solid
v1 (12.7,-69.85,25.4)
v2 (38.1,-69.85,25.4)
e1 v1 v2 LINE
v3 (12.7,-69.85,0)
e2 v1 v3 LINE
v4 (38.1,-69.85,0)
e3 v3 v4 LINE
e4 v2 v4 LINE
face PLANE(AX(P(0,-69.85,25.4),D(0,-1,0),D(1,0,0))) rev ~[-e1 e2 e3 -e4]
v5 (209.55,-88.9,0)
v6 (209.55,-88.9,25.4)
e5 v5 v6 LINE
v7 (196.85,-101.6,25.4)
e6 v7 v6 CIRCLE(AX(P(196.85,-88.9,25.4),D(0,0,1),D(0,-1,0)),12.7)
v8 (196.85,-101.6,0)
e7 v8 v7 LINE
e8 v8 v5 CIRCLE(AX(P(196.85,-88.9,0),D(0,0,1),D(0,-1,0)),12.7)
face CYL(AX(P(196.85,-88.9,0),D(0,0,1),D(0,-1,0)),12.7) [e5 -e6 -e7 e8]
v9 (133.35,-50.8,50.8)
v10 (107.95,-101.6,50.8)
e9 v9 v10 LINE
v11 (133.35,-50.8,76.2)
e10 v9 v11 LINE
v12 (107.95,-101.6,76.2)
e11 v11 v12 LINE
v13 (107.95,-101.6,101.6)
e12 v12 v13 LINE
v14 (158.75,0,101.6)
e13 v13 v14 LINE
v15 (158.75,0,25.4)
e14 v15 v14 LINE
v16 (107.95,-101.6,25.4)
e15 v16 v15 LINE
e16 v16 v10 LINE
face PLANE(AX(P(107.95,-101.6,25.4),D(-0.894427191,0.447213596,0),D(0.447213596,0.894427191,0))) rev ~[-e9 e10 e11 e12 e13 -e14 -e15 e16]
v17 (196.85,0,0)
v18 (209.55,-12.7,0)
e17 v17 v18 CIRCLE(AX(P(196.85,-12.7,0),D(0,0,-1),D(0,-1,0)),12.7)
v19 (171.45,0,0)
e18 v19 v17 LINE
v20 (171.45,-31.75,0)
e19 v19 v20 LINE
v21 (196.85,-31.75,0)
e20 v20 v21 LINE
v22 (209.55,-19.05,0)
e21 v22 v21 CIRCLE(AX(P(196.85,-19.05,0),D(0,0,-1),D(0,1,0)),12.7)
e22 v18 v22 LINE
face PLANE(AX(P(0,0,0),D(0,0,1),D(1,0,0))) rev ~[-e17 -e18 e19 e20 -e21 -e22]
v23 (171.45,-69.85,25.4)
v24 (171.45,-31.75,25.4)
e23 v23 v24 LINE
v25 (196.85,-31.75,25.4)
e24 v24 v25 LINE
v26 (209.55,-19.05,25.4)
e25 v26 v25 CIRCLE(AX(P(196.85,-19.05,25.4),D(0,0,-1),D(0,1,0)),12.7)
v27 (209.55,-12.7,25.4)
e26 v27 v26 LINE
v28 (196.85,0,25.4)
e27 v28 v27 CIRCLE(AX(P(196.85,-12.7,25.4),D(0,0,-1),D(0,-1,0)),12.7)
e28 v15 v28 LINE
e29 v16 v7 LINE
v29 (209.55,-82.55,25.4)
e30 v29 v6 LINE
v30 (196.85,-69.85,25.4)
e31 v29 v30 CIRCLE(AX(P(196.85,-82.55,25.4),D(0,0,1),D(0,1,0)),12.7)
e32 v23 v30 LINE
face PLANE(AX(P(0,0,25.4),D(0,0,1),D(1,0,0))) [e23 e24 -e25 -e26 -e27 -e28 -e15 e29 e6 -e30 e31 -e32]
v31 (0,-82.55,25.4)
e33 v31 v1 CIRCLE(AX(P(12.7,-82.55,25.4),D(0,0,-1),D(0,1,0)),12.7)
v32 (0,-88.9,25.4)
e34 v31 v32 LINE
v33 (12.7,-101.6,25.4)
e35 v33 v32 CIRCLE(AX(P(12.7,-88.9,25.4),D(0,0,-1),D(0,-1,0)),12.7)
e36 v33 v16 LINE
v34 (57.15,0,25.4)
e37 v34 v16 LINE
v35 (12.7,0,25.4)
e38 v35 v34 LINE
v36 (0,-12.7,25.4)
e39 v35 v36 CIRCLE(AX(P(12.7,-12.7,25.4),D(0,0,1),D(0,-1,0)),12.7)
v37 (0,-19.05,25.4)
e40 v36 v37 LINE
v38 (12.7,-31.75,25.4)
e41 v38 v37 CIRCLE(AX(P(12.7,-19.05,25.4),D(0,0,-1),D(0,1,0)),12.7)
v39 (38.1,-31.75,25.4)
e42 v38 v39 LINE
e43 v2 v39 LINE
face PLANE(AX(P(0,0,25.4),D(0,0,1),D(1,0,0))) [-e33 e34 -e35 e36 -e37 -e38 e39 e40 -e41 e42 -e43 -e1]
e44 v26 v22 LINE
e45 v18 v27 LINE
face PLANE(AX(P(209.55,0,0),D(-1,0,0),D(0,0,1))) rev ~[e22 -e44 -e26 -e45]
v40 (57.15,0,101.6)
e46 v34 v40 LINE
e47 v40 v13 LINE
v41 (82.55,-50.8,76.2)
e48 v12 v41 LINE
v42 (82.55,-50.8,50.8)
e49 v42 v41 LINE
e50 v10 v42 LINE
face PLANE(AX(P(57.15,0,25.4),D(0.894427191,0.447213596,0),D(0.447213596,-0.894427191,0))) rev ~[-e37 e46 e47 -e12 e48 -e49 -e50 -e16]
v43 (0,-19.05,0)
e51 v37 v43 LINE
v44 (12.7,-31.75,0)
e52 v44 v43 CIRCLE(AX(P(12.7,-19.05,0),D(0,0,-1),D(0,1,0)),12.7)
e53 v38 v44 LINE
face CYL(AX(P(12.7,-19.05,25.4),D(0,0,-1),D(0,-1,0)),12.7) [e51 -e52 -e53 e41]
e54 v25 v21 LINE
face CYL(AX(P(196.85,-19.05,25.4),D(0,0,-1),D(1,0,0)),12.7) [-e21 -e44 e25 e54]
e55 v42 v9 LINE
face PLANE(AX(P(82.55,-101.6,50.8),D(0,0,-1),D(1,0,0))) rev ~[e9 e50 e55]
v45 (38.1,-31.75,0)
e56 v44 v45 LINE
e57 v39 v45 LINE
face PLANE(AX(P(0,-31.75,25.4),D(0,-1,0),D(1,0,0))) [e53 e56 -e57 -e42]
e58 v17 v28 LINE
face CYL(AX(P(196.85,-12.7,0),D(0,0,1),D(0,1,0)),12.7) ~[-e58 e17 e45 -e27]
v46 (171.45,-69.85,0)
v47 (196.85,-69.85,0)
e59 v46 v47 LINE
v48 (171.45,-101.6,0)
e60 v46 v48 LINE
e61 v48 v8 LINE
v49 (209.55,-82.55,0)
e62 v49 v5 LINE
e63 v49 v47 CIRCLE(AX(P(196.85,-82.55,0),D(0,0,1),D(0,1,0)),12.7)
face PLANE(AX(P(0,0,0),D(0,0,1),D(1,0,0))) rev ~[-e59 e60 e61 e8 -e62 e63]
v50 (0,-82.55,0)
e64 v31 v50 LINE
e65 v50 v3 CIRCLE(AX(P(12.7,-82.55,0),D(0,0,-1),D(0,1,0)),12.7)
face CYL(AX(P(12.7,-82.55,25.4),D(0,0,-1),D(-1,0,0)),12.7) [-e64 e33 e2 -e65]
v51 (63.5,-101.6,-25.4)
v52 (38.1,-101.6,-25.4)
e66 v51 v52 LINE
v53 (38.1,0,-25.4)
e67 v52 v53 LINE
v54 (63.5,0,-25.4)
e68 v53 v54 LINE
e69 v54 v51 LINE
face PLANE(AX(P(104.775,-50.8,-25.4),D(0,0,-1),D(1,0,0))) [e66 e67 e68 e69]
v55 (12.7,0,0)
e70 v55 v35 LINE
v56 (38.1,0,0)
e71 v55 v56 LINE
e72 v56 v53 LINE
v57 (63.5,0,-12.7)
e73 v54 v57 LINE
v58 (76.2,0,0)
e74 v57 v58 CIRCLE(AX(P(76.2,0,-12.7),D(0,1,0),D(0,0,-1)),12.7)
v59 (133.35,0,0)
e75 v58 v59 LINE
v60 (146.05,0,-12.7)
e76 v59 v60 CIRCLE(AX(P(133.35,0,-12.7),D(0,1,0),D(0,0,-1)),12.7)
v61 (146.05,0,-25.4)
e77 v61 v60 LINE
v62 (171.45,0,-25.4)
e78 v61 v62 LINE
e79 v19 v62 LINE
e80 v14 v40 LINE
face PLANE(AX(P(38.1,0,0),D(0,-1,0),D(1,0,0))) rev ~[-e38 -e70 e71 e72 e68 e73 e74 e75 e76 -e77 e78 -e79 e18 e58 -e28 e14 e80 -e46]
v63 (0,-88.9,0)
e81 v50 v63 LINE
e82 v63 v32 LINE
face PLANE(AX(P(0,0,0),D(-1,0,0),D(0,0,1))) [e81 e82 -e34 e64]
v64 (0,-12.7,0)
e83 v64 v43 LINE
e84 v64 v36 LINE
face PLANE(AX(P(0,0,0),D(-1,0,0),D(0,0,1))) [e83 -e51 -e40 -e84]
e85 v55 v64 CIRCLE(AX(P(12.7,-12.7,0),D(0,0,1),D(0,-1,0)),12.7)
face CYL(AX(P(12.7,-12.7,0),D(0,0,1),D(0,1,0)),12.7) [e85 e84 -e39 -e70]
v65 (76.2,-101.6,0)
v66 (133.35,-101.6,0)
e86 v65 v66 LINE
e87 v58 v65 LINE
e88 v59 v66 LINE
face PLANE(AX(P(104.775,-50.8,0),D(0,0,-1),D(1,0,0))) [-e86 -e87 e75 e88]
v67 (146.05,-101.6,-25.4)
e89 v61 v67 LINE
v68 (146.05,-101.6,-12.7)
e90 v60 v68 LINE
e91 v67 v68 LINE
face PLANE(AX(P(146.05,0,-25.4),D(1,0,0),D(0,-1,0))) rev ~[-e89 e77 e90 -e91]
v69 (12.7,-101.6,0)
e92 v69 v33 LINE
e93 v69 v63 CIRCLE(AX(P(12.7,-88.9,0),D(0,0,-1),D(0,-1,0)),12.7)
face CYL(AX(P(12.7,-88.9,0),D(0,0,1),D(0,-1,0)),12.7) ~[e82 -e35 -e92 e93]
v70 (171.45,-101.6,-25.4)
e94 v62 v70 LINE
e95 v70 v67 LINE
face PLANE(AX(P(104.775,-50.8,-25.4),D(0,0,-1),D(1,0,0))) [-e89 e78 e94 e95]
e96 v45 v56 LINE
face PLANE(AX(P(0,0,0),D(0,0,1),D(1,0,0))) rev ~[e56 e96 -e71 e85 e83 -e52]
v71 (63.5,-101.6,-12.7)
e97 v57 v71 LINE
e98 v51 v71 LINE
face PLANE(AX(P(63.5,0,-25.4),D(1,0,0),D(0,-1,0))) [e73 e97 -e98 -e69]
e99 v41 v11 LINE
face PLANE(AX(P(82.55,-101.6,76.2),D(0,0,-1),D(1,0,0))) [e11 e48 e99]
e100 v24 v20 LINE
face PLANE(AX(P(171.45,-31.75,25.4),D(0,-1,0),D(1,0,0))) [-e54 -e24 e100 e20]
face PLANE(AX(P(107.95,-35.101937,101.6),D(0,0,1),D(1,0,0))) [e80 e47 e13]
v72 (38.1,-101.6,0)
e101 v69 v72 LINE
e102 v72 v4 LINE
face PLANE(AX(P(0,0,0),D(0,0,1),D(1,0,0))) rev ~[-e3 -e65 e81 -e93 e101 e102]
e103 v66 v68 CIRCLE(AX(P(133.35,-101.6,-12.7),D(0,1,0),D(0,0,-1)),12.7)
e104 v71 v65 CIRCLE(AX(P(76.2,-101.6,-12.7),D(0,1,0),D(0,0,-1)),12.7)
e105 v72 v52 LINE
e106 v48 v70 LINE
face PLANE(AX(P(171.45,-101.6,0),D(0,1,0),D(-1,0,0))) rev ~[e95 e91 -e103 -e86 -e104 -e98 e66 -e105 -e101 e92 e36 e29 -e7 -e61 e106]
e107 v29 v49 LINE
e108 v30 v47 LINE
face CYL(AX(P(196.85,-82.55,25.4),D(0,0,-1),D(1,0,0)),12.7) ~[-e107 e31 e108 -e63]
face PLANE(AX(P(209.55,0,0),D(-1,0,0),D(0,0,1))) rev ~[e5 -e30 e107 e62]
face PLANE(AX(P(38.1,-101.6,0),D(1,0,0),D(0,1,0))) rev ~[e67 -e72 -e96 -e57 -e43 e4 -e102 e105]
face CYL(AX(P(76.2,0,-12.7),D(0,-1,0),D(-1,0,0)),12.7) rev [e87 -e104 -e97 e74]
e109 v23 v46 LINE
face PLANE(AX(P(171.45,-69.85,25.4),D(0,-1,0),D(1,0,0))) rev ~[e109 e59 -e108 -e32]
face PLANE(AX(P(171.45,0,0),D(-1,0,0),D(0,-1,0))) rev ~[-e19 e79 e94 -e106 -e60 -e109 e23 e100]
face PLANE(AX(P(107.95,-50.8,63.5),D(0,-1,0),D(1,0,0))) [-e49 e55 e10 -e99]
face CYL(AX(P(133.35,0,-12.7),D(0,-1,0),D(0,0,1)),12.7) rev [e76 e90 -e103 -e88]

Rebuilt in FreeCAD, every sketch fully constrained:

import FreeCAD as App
import Part
import Sketcher

V = App.Vector
Q = App.Units.Quantity


def edges_at(feature, points):
    """Names of the edges that pass closest to the given points."""
    edges = feature.Shape.Edges
    near = lambda p: min(range(len(edges)), key=lambda i: edges[i].distToShape(Part.Vertex(*p))[0])
    return sorted({f"Edge{near(p) + 1}" for p in points})

doc = App.newDocument("Part")
body = doc.addObject("PartDesign::Body", "Body")

# Sketch on XZ plane
sketch1 = body.newObject("Sketcher::SketchObject", "Sketch")
sketch1.AttachmentSupport = (doc.getObject("XZ_Plane"), [""])
sketch1.MapMode = "FlatFace"
sketch1.addGeometry(Part.LineSegment(V(0, 25, 0), V(0, 0, 0)), False)
sketch1.addGeometry(Part.LineSegment(V(0, 0, 0), V(210, 0, 0)), False)
sketch1.addGeometry(Part.LineSegment(V(210, 0, 0), V(210, 25, 0)), False)
sketch1.addGeometry(Part.LineSegment(V(210, 25, 0), V(0, 25, 0)), False)
sketch1.addConstraint(Sketcher.Constraint("Coincident", 0, 2, 1, 1))
sketch1.addConstraint(Sketcher.Constraint("Coincident", 1, 2, 2, 1))
sketch1.addConstraint(Sketcher.Constraint("Coincident", 2, 2, 3, 1))
sketch1.addConstraint(Sketcher.Constraint("Coincident", 3, 2, 0, 1))
sketch1.addConstraint(Sketcher.Constraint("Vertical", 0))
sketch1.addConstraint(Sketcher.Constraint("Horizontal", 1))
sketch1.addConstraint(Sketcher.Constraint("Vertical", 2))
sketch1.addConstraint(Sketcher.Constraint("Horizontal", 3))
sketch1.addConstraint(Sketcher.Constraint("Coincident", 0, 2, -1, 1))
sketch1.addConstraint(Sketcher.Constraint("DistanceY", 0, 2, 0, 1, Q("1 in")))
sketch1.addConstraint(Sketcher.Constraint("DistanceX", 1, 1, 1, 2, Q("8.25 in")))
pad1 = body.newObject("PartDesign::Pad", "Pad")
pad1.Profile = sketch1
pad1.Length = Q("4 in")

# Sketch on XY plane
sketch2 = body.newObject("Sketcher::SketchObject", "Sketch001")
sketch2.AttachmentSupport = (doc.getObject("XY_Plane"), [""])
sketch2.MapMode = "FlatFace"
sketch2.AttachmentOffset = App.Placement(V(0, 0, 1 * 25.4), App.Rotation())
sketch2.addGeometry(Part.LineSegment(V(0, -32, 0), V(0, -70, 0)), False)
sketch2.addGeometry(Part.LineSegment(V(0, -70, 0), V(38, -70, 0)), False)
sketch2.addGeometry(Part.LineSegment(V(38, -70, 0), V(38, -32, 0)), False)
sketch2.addGeometry(Part.LineSegment(V(38, -32, 0), V(0, -32, 0)), False)
sketch2.addGeometry(Part.LineSegment(V(171, -32, 0), V(171, -70, 0)), False)
sketch2.addGeometry(Part.LineSegment(V(171, -70, 0), V(210, -70, 0)), False)
sketch2.addGeometry(Part.LineSegment(V(210, -70, 0), V(210, -32, 0)), False)
sketch2.addGeometry(Part.LineSegment(V(210, -32, 0), V(171, -32, 0)), False)
sketch2.addConstraint(Sketcher.Constraint("Coincident", 0, 2, 1, 1))
sketch2.addConstraint(Sketcher.Constraint("Coincident", 1, 2, 2, 1))
sketch2.addConstraint(Sketcher.Constraint("Coincident", 2, 2, 3, 1))
sketch2.addConstraint(Sketcher.Constraint("Coincident", 3, 2, 0, 1))
sketch2.addConstraint(Sketcher.Constraint("Coincident", 4, 2, 5, 1))
sketch2.addConstraint(Sketcher.Constraint("Coincident", 5, 2, 6, 1))
sketch2.addConstraint(Sketcher.Constraint("Coincident", 6, 2, 7, 1))
sketch2.addConstraint(Sketcher.Constraint("Coincident", 7, 2, 4, 1))
sketch2.addConstraint(Sketcher.Constraint("Vertical", 0))
sketch2.addConstraint(Sketcher.Constraint("Horizontal", 1))
sketch2.addConstraint(Sketcher.Constraint("Vertical", 2))
sketch2.addConstraint(Sketcher.Constraint("Horizontal", 3))
sketch2.addConstraint(Sketcher.Constraint("Vertical", 4))
sketch2.addConstraint(Sketcher.Constraint("Horizontal", 5))
sketch2.addConstraint(Sketcher.Constraint("Vertical", 6))
sketch2.addConstraint(Sketcher.Constraint("Horizontal", 7))
sketch2.addConstraint(Sketcher.Constraint("PointOnObject", 0, 2, -2))
sketch2.addConstraint(Sketcher.Constraint("Horizontal", 1, 2, 4, 2))
sketch2.addConstraint(Sketcher.Constraint("Horizontal", 3, 2, 6, 2))
sketch2.addConstraint(Sketcher.Constraint("Equal", 3, 5))
sketch2.addConstraint(Sketcher.Constraint("Equal", 7, 0))
sketch2.addConstraint(Sketcher.Constraint("DistanceX", 1, 1, 1, 2, Q("1.5 in")))
sketch2.addConstraint(Sketcher.Constraint("DistanceY", 0, 2, -1, 1, Q("2.75 in")))
sketch2.addConstraint(Sketcher.Constraint("DistanceX", -1, 1, 4, 2, Q("6.75 in")))
pocket1 = body.newObject("PartDesign::Pocket", "Pocket")
pocket1.Profile = sketch2
pocket1.Type = "ThroughAll"

# Sketch on XY plane
sketch3 = body.newObject("Sketcher::SketchObject", "Sketch002")
sketch3.AttachmentSupport = (doc.getObject("XY_Plane"), [""])
sketch3.MapMode = "FlatFace"
sketch3.addGeometry(Part.LineSegment(V(171, -102, 0), V(38, -102, 0)), False)
sketch3.addGeometry(Part.LineSegment(V(38, -102, 0), V(38, 0, 0)), False)
sketch3.addGeometry(Part.LineSegment(V(38, 0, 0), V(171, 0, 0)), False)
sketch3.addGeometry(Part.LineSegment(V(171, 0, 0), V(171, -102, 0)), False)
sketch3.addConstraint(Sketcher.Constraint("Coincident", 0, 2, 1, 1))
sketch3.addConstraint(Sketcher.Constraint("Coincident", 1, 2, 2, 1))
sketch3.addConstraint(Sketcher.Constraint("Coincident", 2, 2, 3, 1))
sketch3.addConstraint(Sketcher.Constraint("Coincident", 3, 2, 0, 1))
sketch3.addConstraint(Sketcher.Constraint("Horizontal", 0))
sketch3.addConstraint(Sketcher.Constraint("Vertical", 1))
sketch3.addConstraint(Sketcher.Constraint("Horizontal", 2))
sketch3.addConstraint(Sketcher.Constraint("Vertical", 3))
sketch3.addConstraint(Sketcher.Constraint("PointOnObject", 1, 2, -1))
sketch3.addConstraint(Sketcher.Constraint("DistanceY", 1, 1, 1, 2, Q("4 in")))
sketch3.addConstraint(Sketcher.Constraint("DistanceX", 0, 2, 0, 1, Q("5.25 in")))
sketch3.addConstraint(Sketcher.Constraint("DistanceX", -1, 1, 0, 2, Q("1.5 in")))
pad2 = body.newObject("PartDesign::Pad", "Pad001")
pad2.Profile = sketch3
pad2.Length = Q("1 in")
pad2.Reversed = True

# Sketch on XY plane
sketch4 = body.newObject("Sketcher::SketchObject", "Sketch003")
sketch4.AttachmentSupport = (doc.getObject("XY_Plane"), [""])
sketch4.MapMode = "FlatFace"
sketch4.AttachmentOffset = App.Placement(V(0, 0, -1 * 25.4), App.Rotation())
sketch4.addGeometry(Part.LineSegment(V(64, -102, 0), V(64, 0, 0)), False)
sketch4.addGeometry(Part.LineSegment(V(64, 0, 0), V(146, 0, 0)), False)
sketch4.addGeometry(Part.LineSegment(V(146, 0, 0), V(146, -102, 0)), False)
sketch4.addGeometry(Part.LineSegment(V(146, -102, 0), V(64, -102, 0)), False)
sketch4.addConstraint(Sketcher.Constraint("Coincident", 0, 2, 1, 1))
sketch4.addConstraint(Sketcher.Constraint("Coincident", 1, 2, 2, 1))
sketch4.addConstraint(Sketcher.Constraint("Coincident", 2, 2, 3, 1))
sketch4.addConstraint(Sketcher.Constraint("Coincident", 3, 2, 0, 1))
sketch4.addConstraint(Sketcher.Constraint("Vertical", 0))
sketch4.addConstraint(Sketcher.Constraint("Horizontal", 1))
sketch4.addConstraint(Sketcher.Constraint("Vertical", 2))
sketch4.addConstraint(Sketcher.Constraint("Horizontal", 3))
sketch4.addConstraint(Sketcher.Constraint("PointOnObject", 0, 2, -1))
sketch4.addConstraint(Sketcher.Constraint("DistanceY", 0, 1, 0, 2, Q("4 in")))
sketch4.addConstraint(Sketcher.Constraint("DistanceX", 1, 1, 1, 2, Q("3.25 in")))
sketch4.addConstraint(Sketcher.Constraint("DistanceX", -1, 1, 0, 2, Q("2.5 in")))
pocket2 = body.newObject("PartDesign::Pocket", "Pocket001")
pocket2.Profile = sketch4
pocket2.Length = Q("1 in")
pocket2.Reversed = True

# Sketch on XY plane
sketch5 = body.newObject("Sketcher::SketchObject", "Sketch004")
sketch5.AttachmentSupport = (doc.getObject("XY_Plane"), [""])
sketch5.MapMode = "FlatFace"
sketch5.AttachmentOffset = App.Placement(V(0, 0, 1 * 25.4), App.Rotation())
sketch5.addGeometry(Part.LineSegment(V(159, 0, 0), V(57, 0, 0)), False)
sketch5.addGeometry(Part.LineSegment(V(57, 0, 0), V(108, -102, 0)), False)
sketch5.addGeometry(Part.LineSegment(V(108, -102, 0), V(159, 0, 0)), False)
sketch5.addConstraint(Sketcher.Constraint("Coincident", 0, 2, 1, 1))
sketch5.addConstraint(Sketcher.Constraint("Coincident", 1, 2, 2, 1))
sketch5.addConstraint(Sketcher.Constraint("Coincident", 2, 2, 0, 1))
sketch5.addConstraint(Sketcher.Constraint("Horizontal", 0))
sketch5.addConstraint(Sketcher.Constraint("PointOnObject", 0, 2, -1))
sketch5.addConstraint(Sketcher.Constraint("Equal", 1, 2))
sketch5.addConstraint(Sketcher.Constraint("DistanceX", 0, 2, 0, 1, Q("4 in")))
sketch5.addConstraint(Sketcher.Constraint("DistanceY", 1, 2, -1, 1, Q("4 in")))
sketch5.addConstraint(Sketcher.Constraint("DistanceX", -1, 1, 0, 2, Q("2.25 in")))
pad3 = body.newObject("PartDesign::Pad", "Pad002")
pad3.Profile = sketch5
pad3.Length = Q("3 in")

# Sketch on XZ plane
sketch6 = body.newObject("Sketcher::SketchObject", "Sketch005")
sketch6.AttachmentSupport = (doc.getObject("XZ_Plane"), [""])
sketch6.MapMode = "FlatFace"
sketch6.AttachmentOffset = App.Placement(V(0, 0, 4 * 25.4), App.Rotation())
sketch6.addGeometry(Part.LineSegment(V(83, 76, 0), V(83, 51, 0)), False)
sketch6.addGeometry(Part.LineSegment(V(83, 51, 0), V(133, 51, 0)), False)
sketch6.addGeometry(Part.LineSegment(V(133, 51, 0), V(133, 76, 0)), False)
sketch6.addGeometry(Part.LineSegment(V(133, 76, 0), V(83, 76, 0)), False)
sketch6.addConstraint(Sketcher.Constraint("Coincident", 0, 2, 1, 1))
sketch6.addConstraint(Sketcher.Constraint("Coincident", 1, 2, 2, 1))
sketch6.addConstraint(Sketcher.Constraint("Coincident", 2, 2, 3, 1))
sketch6.addConstraint(Sketcher.Constraint("Coincident", 3, 2, 0, 1))
sketch6.addConstraint(Sketcher.Constraint("Vertical", 0))
sketch6.addConstraint(Sketcher.Constraint("Horizontal", 1))
sketch6.addConstraint(Sketcher.Constraint("Vertical", 2))
sketch6.addConstraint(Sketcher.Constraint("Horizontal", 3))
sketch6.addConstraint(Sketcher.Constraint("DistanceX", 1, 1, 1, 2, Q("2 in")))
sketch6.addConstraint(Sketcher.Constraint("DistanceY", 0, 2, 0, 1, Q("1 in")))
sketch6.addConstraint(Sketcher.Constraint("DistanceY", -1, 1, 0, 2, Q("2 in")))
sketch6.addConstraint(Sketcher.Constraint("DistanceX", -1, 1, 0, 2, Q("3.25 in")))
pocket3 = body.newObject("PartDesign::Pocket", "Pocket002")
pocket3.Profile = sketch6
pocket3.Length = Q("2 in")
doc.recompute()

fillet = body.newObject("PartDesign::Fillet", "Fillet")
fillet.Base = (pocket3, edges_at(pocket3, [
    (0, -101.6, 12.7),
    (0, -69.85, 12.7),
    (0, -31.75, 12.7),
    (0, 0, 12.7),
    (209.55, 0, 12.7),
    (209.55, -31.75, 12.7),
    (209.55, -69.85, 12.7),
    (209.55, -101.6, 12.7),
    (63.5, -50.8, 0),
    (146.05, -50.8, 0),
]))
fillet.Radius = Q("0.5 in")

doc.recompute()
